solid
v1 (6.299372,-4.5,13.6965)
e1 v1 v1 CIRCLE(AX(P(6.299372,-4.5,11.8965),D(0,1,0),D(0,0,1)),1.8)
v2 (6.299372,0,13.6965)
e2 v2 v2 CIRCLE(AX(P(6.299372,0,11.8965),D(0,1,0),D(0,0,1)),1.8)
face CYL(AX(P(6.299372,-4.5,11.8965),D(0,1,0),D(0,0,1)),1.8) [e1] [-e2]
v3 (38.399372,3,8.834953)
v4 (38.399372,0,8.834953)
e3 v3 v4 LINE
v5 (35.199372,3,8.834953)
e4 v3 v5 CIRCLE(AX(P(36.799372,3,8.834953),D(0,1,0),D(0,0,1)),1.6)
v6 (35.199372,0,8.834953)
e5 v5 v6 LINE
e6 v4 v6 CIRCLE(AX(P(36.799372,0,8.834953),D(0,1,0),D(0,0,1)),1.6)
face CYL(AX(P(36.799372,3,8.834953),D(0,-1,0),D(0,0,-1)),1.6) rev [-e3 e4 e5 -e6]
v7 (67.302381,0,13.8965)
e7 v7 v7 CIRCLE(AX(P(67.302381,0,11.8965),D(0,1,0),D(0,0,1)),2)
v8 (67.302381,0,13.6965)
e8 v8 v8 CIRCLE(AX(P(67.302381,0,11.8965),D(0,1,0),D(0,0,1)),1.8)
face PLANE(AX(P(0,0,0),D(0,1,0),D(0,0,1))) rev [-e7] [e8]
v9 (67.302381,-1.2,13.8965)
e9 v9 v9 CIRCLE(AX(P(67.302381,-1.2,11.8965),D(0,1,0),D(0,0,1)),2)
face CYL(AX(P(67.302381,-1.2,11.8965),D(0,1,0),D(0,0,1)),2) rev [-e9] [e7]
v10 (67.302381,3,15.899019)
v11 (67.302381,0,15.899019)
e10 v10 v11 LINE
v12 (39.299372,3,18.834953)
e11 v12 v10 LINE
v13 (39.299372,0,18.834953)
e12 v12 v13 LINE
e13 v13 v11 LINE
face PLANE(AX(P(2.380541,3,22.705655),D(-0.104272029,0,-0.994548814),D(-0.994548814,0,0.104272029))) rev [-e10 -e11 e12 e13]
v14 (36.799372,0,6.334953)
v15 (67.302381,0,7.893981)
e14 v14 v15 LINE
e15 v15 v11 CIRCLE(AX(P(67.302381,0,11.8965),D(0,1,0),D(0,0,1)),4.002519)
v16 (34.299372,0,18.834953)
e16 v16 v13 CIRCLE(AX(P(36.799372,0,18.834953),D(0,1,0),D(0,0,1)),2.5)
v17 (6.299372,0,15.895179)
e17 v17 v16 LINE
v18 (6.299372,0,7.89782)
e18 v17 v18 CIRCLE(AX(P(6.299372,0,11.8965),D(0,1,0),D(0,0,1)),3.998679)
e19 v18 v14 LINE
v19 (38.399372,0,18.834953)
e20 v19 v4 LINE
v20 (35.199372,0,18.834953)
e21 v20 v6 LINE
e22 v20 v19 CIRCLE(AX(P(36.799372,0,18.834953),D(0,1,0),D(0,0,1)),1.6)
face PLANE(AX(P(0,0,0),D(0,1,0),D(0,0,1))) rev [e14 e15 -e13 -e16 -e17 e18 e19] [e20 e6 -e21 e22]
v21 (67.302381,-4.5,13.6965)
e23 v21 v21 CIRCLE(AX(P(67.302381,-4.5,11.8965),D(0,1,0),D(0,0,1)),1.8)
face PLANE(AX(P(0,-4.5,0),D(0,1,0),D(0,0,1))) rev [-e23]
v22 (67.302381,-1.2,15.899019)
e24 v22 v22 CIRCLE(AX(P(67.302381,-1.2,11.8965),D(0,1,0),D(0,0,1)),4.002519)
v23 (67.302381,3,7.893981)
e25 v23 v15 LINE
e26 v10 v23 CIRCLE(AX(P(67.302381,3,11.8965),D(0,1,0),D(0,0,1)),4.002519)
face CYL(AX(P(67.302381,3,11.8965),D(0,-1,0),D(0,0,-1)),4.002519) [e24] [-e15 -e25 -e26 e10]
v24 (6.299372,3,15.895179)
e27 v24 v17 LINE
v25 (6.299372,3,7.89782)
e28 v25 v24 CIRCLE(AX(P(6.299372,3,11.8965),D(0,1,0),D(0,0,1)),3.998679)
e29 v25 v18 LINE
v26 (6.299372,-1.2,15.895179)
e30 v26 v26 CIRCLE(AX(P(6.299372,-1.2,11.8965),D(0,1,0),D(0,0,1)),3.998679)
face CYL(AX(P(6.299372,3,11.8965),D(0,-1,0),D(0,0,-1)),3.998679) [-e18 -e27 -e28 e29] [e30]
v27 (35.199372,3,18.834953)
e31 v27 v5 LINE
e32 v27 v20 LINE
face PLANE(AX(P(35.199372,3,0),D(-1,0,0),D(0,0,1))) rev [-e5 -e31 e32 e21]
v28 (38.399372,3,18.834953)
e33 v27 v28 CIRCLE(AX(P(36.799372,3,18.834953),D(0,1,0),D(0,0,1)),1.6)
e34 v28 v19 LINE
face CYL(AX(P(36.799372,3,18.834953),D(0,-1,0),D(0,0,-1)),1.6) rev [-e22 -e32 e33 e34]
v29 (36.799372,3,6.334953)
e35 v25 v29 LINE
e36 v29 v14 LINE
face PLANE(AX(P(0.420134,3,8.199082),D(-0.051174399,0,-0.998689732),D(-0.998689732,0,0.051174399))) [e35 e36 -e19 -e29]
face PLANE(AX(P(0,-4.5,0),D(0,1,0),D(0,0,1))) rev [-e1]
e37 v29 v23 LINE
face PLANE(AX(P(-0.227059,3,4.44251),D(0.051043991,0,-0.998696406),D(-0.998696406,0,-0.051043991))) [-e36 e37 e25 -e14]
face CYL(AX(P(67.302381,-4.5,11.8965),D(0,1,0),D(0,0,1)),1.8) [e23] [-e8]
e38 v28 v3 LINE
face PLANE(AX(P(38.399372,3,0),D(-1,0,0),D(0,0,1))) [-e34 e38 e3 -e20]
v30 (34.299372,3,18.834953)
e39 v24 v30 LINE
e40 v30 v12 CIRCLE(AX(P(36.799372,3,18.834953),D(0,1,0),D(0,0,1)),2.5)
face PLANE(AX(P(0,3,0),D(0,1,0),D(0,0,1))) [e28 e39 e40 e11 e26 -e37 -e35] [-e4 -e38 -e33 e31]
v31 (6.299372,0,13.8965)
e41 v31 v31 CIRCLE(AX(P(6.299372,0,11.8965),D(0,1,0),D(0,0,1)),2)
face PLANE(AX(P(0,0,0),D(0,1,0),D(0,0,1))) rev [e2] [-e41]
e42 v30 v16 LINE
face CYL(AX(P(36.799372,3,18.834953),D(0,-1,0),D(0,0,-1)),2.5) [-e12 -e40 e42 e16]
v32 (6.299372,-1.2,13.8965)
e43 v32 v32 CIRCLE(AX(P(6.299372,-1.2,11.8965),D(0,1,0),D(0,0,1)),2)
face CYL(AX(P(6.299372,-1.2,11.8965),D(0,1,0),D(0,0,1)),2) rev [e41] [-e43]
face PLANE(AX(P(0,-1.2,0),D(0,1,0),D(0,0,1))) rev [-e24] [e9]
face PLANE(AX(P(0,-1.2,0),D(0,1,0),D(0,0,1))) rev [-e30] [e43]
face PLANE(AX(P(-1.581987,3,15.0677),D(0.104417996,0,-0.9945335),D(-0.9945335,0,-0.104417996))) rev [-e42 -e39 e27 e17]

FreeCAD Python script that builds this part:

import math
import FreeCAD as App
import Part
import Sketcher

V = App.Vector
Q = App.Units.Quantity

doc = App.newDocument("Part")
body = doc.addObject("PartDesign::Body", "Body")

sketch1 = body.newObject("Sketcher::SketchObject", "Sketch")
sketch1.AttachmentSupport = (doc.getObject("XZ_Plane"), [""])
sketch1.MapMode = "FlatFace"
sketch1.addGeometry([
    Part.LineSegment(V(6.3, 15.9, 0), V(34.3, 18.8, 0)),
    Part.ArcOfCircle(Part.Circle(V(36.8, 18.8, 0), V(0, 0, 1), 2.5), math.radians(0), math.radians(180)),
    Part.LineSegment(V(39.3, 18.8, 0), V(67.3, 15.9, 0)),
    Part.ArcOfCircle(Part.Circle(V(67.3, 11.9, 0), V(0, 0, 1), 4), math.radians(-90), math.radians(90)),
    Part.LineSegment(V(67.3, 7.9, 0), V(36.8, 6.3, 0)),
    Part.LineSegment(V(36.8, 6.3, 0), V(6.3, 7.9, 0)),
    Part.ArcOfCircle(Part.Circle(V(6.3, 11.9, 0), V(0, 0, 1), 4), math.radians(90), math.radians(270)),
    Part.LineSegment(V(35.2, 18.8, 0), V(35.2, 8.8, 0)),
    Part.ArcOfCircle(Part.Circle(V(36.8, 8.8, 0), V(0, 0, 1), 1.6), math.radians(180), math.radians(360)),
    Part.LineSegment(V(38.4, 8.8, 0), V(38.4, 18.8, 0)),
    Part.ArcOfCircle(Part.Circle(V(36.8, 18.8, 0), V(0, 0, 1), 1.6), math.radians(0), math.radians(180)),
], False)
sketch1.addConstraint([
    Sketcher.Constraint("Coincident", 0, 2, 1, 2),
    Sketcher.Constraint("Coincident", 1, 1, 2, 1),
    Sketcher.Constraint("Coincident", 2, 2, 3, 2),
    Sketcher.Constraint("Coincident", 3, 1, 4, 1),
    Sketcher.Constraint("Coincident", 4, 2, 5, 1),
    Sketcher.Constraint("Coincident", 5, 2, 6, 2),
    Sketcher.Constraint("Coincident", 6, 1, 0, 1),
    Sketcher.Constraint("Tangent", 7, 2, 8, 1),
    Sketcher.Constraint("Tangent", 8, 2, 9, 1),
    Sketcher.Constraint("Tangent", 9, 2, 10, 1),
    Sketcher.Constraint("Tangent", 10, 2, 7, 1),
    Sketcher.Constraint("Vertical", 7),
    Sketcher.Constraint("Vertical", 9),
    Sketcher.Constraint("Coincident", 10, 3, 1, 3),
    Sketcher.Constraint("Horizontal", 3, 3, 6, 3),
    Sketcher.Constraint("Horizontal", 10, 3, 0, 2),
    Sketcher.Constraint("Horizontal", 0, 2, 1, 1),
    Sketcher.Constraint("Vertical", 3, 3, 2, 2),
    Sketcher.Constraint("Vertical", 2, 2, 3, 1),
    Sketcher.Constraint("Vertical", 10, 3, 4, 2),
    Sketcher.Constraint("Vertical", 6, 3, 5, 2),
    Sketcher.Constraint("Vertical", 5, 2, 6, 1),
    Sketcher.Constraint("Radius", 1, Q("2.5 mm")),
    Sketcher.Constraint("Radius", 8, Q("1.6 mm")),
    Sketcher.Constraint("DistanceY", 7, 2, 7, 1, Q("10 mm")),
    Sketcher.Constraint("DistanceX", 6, 3, 0, 2, Q("28 mm")),
    Sketcher.Constraint("DistanceY", 4, 2, 8, 3, Q("2.5 mm")),
    Sketcher.Constraint("Radius", 3, Q("4.002519 mm")),
    Sketcher.Constraint("Radius", 6, Q("3.998679 mm")),
    Sketcher.Constraint("DistanceY", -1, 1, 3, 3, Q("11.8965 mm")),
    Sketcher.Constraint("DistanceX", -1, 1, 1, 3, Q("36.799372 mm")),
    Sketcher.Constraint("DistanceX", -1, 1, 3, 3, Q("67.302381 mm")),
    Sketcher.Constraint("Distance", 0, Q("28.153903 mm")),
])
pad1 = body.newObject("PartDesign::Pad", "Pad")
pad1.Profile = sketch1
pad1.Length = 3
pad1.Reversed = True

sketch2 = body.newObject("Sketcher::SketchObject", "Sketch001")
sketch2.AttachmentSupport = (doc.getObject("XZ_Plane"), [""])
sketch2.MapMode = "FlatFace"
sketch2.addGeometry([
    Part.Circle(V(6.3, 11.9, 0), V(0, 0, 1), 1.8),
    Part.Circle(V(67.3, 11.9, 0), V(0, 0, 1), 1.8),
], False)
sketch2.addConstraint([
    Sketcher.Constraint("Equal", 0, 1),
    Sketcher.Constraint("Horizontal", 0, 3, 1, 3),
    Sketcher.Constraint("Diameter", 0, Q("3.6 mm")),
    Sketcher.Constraint("DistanceY", -1, 1, 0, 3, Q("11.8965 mm")),
    Sketcher.Constraint("DistanceX", -1, 1, 0, 3, Q("6.299372 mm")),
    Sketcher.Constraint("DistanceX", -1, 1, 1, 3, Q("67.302381 mm")),
])
pad2 = body.newObject("PartDesign::Pad", "Pad001")
pad2.Profile = sketch2
pad2.Length = 4.5

sketch3 = body.newObject("Sketcher::SketchObject", "Sketch002")
sketch3.AttachmentSupport = (doc.getObject("XZ_Plane"), [""])
sketch3.MapMode = "FlatFace"
sketch3.AttachmentOffset = App.Placement(V(0, 0, 1.2), App.Rotation())
sketch3.addGeometry([
    Part.Circle(V(6.3, 11.9, 0), V(0, 0, 1), 4),
    Part.Circle(V(6.3, 11.9, 0), V(0, 0, 1), 2),
    Part.Circle(V(67.3, 11.9, 0), V(0, 0, 1), 4),
    Part.Circle(V(67.3, 11.9, 0), V(0, 0, 1), 2),
], False)
sketch3.addConstraint([
    Sketcher.Constraint("Coincident", 1, 3, 0, 3),
    Sketcher.Constraint("Coincident", 3, 3, 2, 3),
    Sketcher.Constraint("Equal", 1, 3),
    Sketcher.Constraint("Horizontal", 1, 3, 2, 3),
    Sketcher.Constraint("Diameter", 1, Q("4 mm")),
    Sketcher.Constraint("Diameter", 0, Q("7.997359 mm")),
    Sketcher.Constraint("Diameter", 2, Q("8.005037 mm")),
    Sketcher.Constraint("DistanceY", -1, 1, 0, 3, Q("11.8965 mm")),
    Sketcher.Constraint("DistanceX", -1, 1, 0, 3, Q("6.299372 mm")),
    Sketcher.Constraint("DistanceX", -1, 1, 2, 3, Q("67.302381 mm")),
])
pad3 = body.newObject("PartDesign::Pad", "Pad002")
pad3.Profile = sketch3
pad3.Length = 1.2
pad3.Reversed = True

doc.recompute()
